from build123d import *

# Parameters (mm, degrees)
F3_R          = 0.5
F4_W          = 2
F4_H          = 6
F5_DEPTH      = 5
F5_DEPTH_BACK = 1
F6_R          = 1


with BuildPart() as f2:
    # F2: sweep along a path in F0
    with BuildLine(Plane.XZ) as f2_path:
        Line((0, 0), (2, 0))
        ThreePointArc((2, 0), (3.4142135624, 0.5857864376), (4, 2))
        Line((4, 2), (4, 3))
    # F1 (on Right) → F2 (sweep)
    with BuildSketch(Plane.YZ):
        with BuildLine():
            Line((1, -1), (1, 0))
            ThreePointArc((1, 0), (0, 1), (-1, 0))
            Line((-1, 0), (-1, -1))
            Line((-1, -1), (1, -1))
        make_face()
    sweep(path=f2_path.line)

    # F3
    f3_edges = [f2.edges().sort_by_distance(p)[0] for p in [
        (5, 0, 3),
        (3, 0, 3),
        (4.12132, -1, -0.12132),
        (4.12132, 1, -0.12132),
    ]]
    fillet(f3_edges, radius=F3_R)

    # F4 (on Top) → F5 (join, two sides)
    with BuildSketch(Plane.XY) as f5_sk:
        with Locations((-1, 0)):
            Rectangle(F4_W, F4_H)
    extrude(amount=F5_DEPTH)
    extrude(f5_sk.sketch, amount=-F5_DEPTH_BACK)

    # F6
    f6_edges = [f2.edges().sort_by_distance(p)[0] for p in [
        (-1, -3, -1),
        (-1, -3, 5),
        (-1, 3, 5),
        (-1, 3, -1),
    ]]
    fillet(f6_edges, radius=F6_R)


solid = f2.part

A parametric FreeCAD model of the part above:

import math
import FreeCAD as App
import Part
import Sketcher
Q = App.Units.Quantity


def edges_at(feature, points):
    """Names of the edges that pass closest to the given points."""
    edges = feature.Shape.Edges
    near = lambda p: min(range(len(edges)), key=lambda i: edges[i].distToShape(Part.Vertex(*p))[0])
    return sorted({f"Edge{near(p) + 1}" for p in points})


def add_polygon(sketch, points):
    """Adds a closed chain of lines whose ends are joined by coincident constraints."""
    first, n = sketch.GeometryCount, len(points)
    for a, b in zip(points, points[1:] + points[:1]):
        sketch.addGeometry(Part.LineSegment(App.Vector(*a, 0), App.Vector(*b, 0)), False)
    for i in range(n):
        sketch.addConstraint(Sketcher.Constraint("Coincident", first + i, 2, first + (i + 1) % n, 1))

doc = App.newDocument("Part")
body = doc.addObject("PartDesign::Body", "Body")

sketch1 = body.newObject("Sketcher::SketchObject", "Sketch")
sketch1.AttachmentSupport = (doc.getObject("YZ_Plane"), [""])
sketch1.MapMode = "FlatFace"
sketch1.addGeometry([
    Part.LineSegment(App.Vector(1, -1, 0), App.Vector(1, 0, 0)),
    Part.ArcOfCircle(Part.Circle(App.Vector(0, 0, 0), App.Vector(0, 0, 1), 1), math.radians(0), math.radians(180)),
    Part.LineSegment(App.Vector(-1, 0, 0), App.Vector(-1, -1, 0)),
    Part.LineSegment(App.Vector(-1, -1, 0), App.Vector(1, -1, 0)),
], False)
sketch1.addConstraint([
    Sketcher.Constraint("Tangent", 0, 2, 1, 1),
    Sketcher.Constraint("Tangent", 1, 2, 2, 1),
    Sketcher.Constraint("Coincident", 2, 2, 3, 1),
    Sketcher.Constraint("Coincident", 3, 2, 0, 1),
    Sketcher.Constraint("Vertical", 0),
    Sketcher.Constraint("Vertical", 2),
    Sketcher.Constraint("Horizontal", 3),
    Sketcher.Constraint("Coincident", 1, 3, -1, 1),
    Sketcher.Constraint("Radius", 1, Q("1 mm")),
    Sketcher.Constraint("DistanceY", 0, 1, 0, 2, Q("1 mm")),
])

sketch2 = body.newObject("Sketcher::SketchObject", "Sketch001")
sketch2.AttachmentSupport = (doc.getObject("XZ_Plane"), [""])
sketch2.MapMode = "FlatFace"
sketch2.addGeometry([
    Part.LineSegment(App.Vector(0, 0, 0), App.Vector(2, 0, 0)),
    Part.ArcOfCircle(Part.Circle(App.Vector(2, 2, 0), App.Vector(0, 0, 1), 2), math.radians(-90), math.radians(0)),
    Part.LineSegment(App.Vector(4, 2, 0), App.Vector(4, 3, 0)),
], False)
sketch2.addConstraint([
    Sketcher.Constraint("Tangent", 0, 2, 1, 1),
    Sketcher.Constraint("Tangent", 1, 2, 2, 1),
    Sketcher.Constraint("Horizontal", 0),
    Sketcher.Constraint("Vertical", 2),
    Sketcher.Constraint("Coincident", 0, 1, -1, 1),
    Sketcher.Constraint("Radius", 1, Q("2 mm")),
    Sketcher.Constraint("DistanceX", 0, 1, 0, 2, Q("2 mm")),
    Sketcher.Constraint("DistanceY", 2, 1, 2, 2, Q("1 mm")),
])
doc.recompute()

additivepipe = body.newObject("PartDesign::AdditivePipe", "AdditivePipe")
additivepipe.Profile = sketch1
additivepipe.Spine = (sketch2, ["Edge1", "Edge2", "Edge3"])
doc.recompute()

fillet = body.newObject("PartDesign::Fillet", "Fillet")
fillet.Base = (additivepipe, edges_at(additivepipe, [
    (5, 0, 3),
    (3, 0, 3),
    (4.121, -1, -0.121),
    (4.121, 1, -0.121),
]))
fillet.Radius = 0.5

sketch3 = body.newObject("Sketcher::SketchObject", "Sketch002")
sketch3.AttachmentSupport = (doc.getObject("XY_Plane"), [""])
sketch3.MapMode = "FlatFace"
add_polygon(sketch3, [(-2, 3), (-2, -3), (0, -3), (0, 3)])
sketch3.addConstraint([
    Sketcher.Constraint("Vertical", 0),
    Sketcher.Constraint("Horizontal", 1),
    Sketcher.Constraint("Vertical", 2),
    Sketcher.Constraint("Horizontal", 3),
    Sketcher.Constraint("Symmetric", 1, 2, 2, 2, -1, 1),
    Sketcher.Constraint("DistanceX", 1, 1, 1, 2, Q("2 mm")),
    Sketcher.Constraint("DistanceY", 0, 2, 0, 1, Q("6 mm")),
])
pad1 = body.newObject("PartDesign::Pad", "Pad")
pad1.Profile = sketch3
pad1.Type = "TwoLengths"
pad1.Length = 5
pad1.Length2 = 1
doc.recompute()

fillet2 = body.newObject("PartDesign::Fillet", "Fillet001")
fillet2.Base = (pad1, edges_at(pad1, [
    (-1, -3, -1),
    (-1, -3, 5),
    (-1, 3, 5),
    (-1, 3, -1),
]))
fillet2.Radius = 1

doc.recompute()
